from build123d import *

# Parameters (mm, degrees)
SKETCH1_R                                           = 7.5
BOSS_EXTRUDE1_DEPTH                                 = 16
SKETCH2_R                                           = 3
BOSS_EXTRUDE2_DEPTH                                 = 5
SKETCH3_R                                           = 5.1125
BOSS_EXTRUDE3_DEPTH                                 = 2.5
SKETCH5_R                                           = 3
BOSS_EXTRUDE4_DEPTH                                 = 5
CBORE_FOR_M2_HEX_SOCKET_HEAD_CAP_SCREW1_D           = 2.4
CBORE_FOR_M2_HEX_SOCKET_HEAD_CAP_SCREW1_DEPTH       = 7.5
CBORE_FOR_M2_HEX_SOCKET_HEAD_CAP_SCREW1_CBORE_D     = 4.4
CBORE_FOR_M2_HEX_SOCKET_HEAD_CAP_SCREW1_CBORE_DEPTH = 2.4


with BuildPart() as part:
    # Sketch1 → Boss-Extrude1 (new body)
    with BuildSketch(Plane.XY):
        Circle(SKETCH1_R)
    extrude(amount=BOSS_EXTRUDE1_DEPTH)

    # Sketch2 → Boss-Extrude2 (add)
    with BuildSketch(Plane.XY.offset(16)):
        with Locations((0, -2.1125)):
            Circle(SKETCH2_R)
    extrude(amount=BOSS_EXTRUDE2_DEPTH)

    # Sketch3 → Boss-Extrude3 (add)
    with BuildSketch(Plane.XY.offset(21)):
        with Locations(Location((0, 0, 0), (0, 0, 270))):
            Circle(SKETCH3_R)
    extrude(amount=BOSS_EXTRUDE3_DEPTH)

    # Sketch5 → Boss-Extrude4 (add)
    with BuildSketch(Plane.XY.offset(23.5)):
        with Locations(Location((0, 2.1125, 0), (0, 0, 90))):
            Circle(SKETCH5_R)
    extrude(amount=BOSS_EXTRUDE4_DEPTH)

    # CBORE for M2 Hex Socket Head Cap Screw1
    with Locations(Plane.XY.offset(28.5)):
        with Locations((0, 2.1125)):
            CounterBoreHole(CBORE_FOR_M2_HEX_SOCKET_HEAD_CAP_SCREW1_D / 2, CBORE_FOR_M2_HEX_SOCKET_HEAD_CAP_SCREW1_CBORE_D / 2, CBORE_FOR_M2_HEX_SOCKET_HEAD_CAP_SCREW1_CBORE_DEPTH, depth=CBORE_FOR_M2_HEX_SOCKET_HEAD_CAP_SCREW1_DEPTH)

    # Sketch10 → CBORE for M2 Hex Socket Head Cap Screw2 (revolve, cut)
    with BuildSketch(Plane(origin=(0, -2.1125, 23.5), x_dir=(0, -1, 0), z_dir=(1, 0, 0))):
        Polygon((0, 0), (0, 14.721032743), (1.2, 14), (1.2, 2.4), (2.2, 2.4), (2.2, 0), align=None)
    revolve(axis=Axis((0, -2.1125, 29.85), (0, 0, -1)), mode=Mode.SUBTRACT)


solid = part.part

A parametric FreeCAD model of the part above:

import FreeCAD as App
import Part
import Sketcher
from FreeCAD import Vector
Q = App.Units.Quantity

doc = App.newDocument("Part")
body = doc.addObject("PartDesign::Body", "Body")

# Sketch on XY plane
sketch1 = doc.addObject("Sketcher::SketchObject", "Sketch")
body.addObject(sketch1)
sketch1.AttachmentSupport = (doc.XY_Plane, [""])
sketch1.MapMode = "FlatFace"
sketch1.addGeometry(Part.Circle(Vector(0, 0, 0), Vector(0, 0, 1), 7.5), False)
sketch1.addConstraint([
    Sketcher.Constraint("Coincident", 0, 3, -1, 1),
    Sketcher.Constraint("Diameter", 0, Q("15 mm")),
])
pad1 = doc.addObject("PartDesign::Pad", "Pad")
body.addObject(pad1)
pad1.Profile = sketch1
pad1.Length = 16

# Sketch on XY plane
sketch2 = doc.addObject("Sketcher::SketchObject", "Sketch001")
body.addObject(sketch2)
sketch2.AttachmentSupport = (doc.XY_Plane, [""])
sketch2.MapMode = "FlatFace"
sketch2.AttachmentOffset = App.Placement(Vector(0, 0, 16), App.Rotation())
sketch2.addGeometry(Part.Circle(Vector(0, -2.1125, 0), Vector(0, 0, 1), 3), False)
sketch2.addConstraint([
    Sketcher.Constraint("PointOnObject", 0, 3, -2),
    Sketcher.Constraint("Diameter", 0, Q("6 mm")),
    Sketcher.Constraint("DistanceY", 0, 3, -1, 1, Q("2.1125 mm")),
])
pad2 = doc.addObject("PartDesign::Pad", "Pad001")
body.addObject(pad2)
pad2.Profile = sketch2
pad2.Length = 5

# Sketch on XY plane
sketch3 = doc.addObject("Sketcher::SketchObject", "Sketch002")
body.addObject(sketch3)
sketch3.AttachmentSupport = (doc.XY_Plane, [""])
sketch3.MapMode = "FlatFace"
sketch3.AttachmentOffset = App.Placement(Vector(0, 0, 21), App.Rotation())
sketch3.addGeometry(Part.Circle(Vector(0, 0, 0), Vector(0, 0, 1), 5.1125), False)
sketch3.addConstraint([
    Sketcher.Constraint("Coincident", 0, 3, -1, 1),
    Sketcher.Constraint("Diameter", 0, Q("10.225 mm")),
])
pad3 = doc.addObject("PartDesign::Pad", "Pad002")
body.addObject(pad3)
pad3.Profile = sketch3
pad3.Length = 2.5

# Sketch on XY plane
sketch4 = doc.addObject("Sketcher::SketchObject", "Sketch003")
body.addObject(sketch4)
sketch4.AttachmentSupport = (doc.XY_Plane, [""])
sketch4.MapMode = "FlatFace"
sketch4.AttachmentOffset = App.Placement(Vector(0, 0, 23.5), App.Rotation())
sketch4.addGeometry(Part.Circle(Vector(0, 2.1125, 0), Vector(0, 0, 1), 3), False)
sketch4.addConstraint([
    Sketcher.Constraint("PointOnObject", 0, 3, -2),
    Sketcher.Constraint("Diameter", 0, Q("6 mm")),
    Sketcher.Constraint("DistanceY", -1, 1, 0, 3, Q("2.1125 mm")),
])
pad4 = doc.addObject("PartDesign::Pad", "Pad003")
body.addObject(pad4)
pad4.Profile = sketch4
pad4.Length = 5

# Sketch on XY plane
sketch5 = doc.addObject("Sketcher::SketchObject", "Sketch004")
body.addObject(sketch5)
sketch5.AttachmentSupport = (doc.XY_Plane, [""])
sketch5.MapMode = "FlatFace"
sketch5.AttachmentOffset = App.Placement(Vector(0, 0, 28.5), App.Rotation())
sketch5.addGeometry(Part.Circle(Vector(0, 2.1125, 0), Vector(0, 0, 1), 1.2), False)
sketch5.addConstraint([
    Sketcher.Constraint("PointOnObject", 0, 3, -2),
    Sketcher.Constraint("Diameter", 0, Q("2.4 mm")),
    Sketcher.Constraint("DistanceY", -1, 1, 0, 3, Q("2.1125 mm")),
])
doc.recompute()
hole = doc.addObject("PartDesign::Hole", "Hole")
body.addObject(hole)
hole.Profile = sketch5
hole.ThreadType = "None"
hole.Diameter = 2.4
hole.DepthType = "Dimension"
hole.Depth = 7.5
hole.DrillPoint = "Flat"
hole.HoleCutType = "Counterbore"
hole.HoleCutDiameter = 4.4
hole.HoleCutDepth = 2.4

# Sketch on YZ plane
sketch6 = doc.addObject("Sketcher::SketchObject", "Sketch005")
body.addObject(sketch6)
sketch6.AttachmentSupport = (doc.YZ_Plane, [""])
sketch6.MapMode = "FlatFace"
sketch6.addGeometry([
    Part.LineSegment(Vector(-2.1125, 8.778967, 0), Vector(-2.1125, 23.5, 0)),  # 0
    Part.LineSegment(Vector(-2.1125, 23.5, 0), Vector(-4.3125, 23.5, 0)),  # 1
    Part.LineSegment(Vector(-4.3125, 23.5, 0), Vector(-4.3125, 21.1, 0)),  # 2
    Part.LineSegment(Vector(-4.3125, 21.1, 0), Vector(-3.3125, 21.1, 0)),  # 3
    Part.LineSegment(Vector(-3.3125, 21.1, 0), Vector(-3.3125, 9.5, 0)),  # 4
    Part.LineSegment(Vector(-3.3125, 9.5, 0), Vector(-2.1125, 8.778967, 0)),  # 5
], False)
sketch6.addGeometry(Part.LineSegment(Vector(-2.1125, 23.5, 0), Vector(-2.1125, 8.778967, 0)), True)  # axis
sketch6.addConstraint([
    Sketcher.Constraint("Coincident", 0, 2, 1, 1),
    Sketcher.Constraint("Coincident", 1, 2, 2, 1),
    Sketcher.Constraint("Coincident", 2, 2, 3, 1),
    Sketcher.Constraint("Coincident", 3, 2, 4, 1),
    Sketcher.Constraint("Coincident", 4, 2, 5, 1),
    Sketcher.Constraint("Coincident", 5, 2, 0, 1),
    Sketcher.Constraint("Vertical", 0),
    Sketcher.Constraint("Horizontal", 1),
    Sketcher.Constraint("Vertical", 2),
    Sketcher.Constraint("Horizontal", 3),
    Sketcher.Constraint("Vertical", 4),
    Sketcher.Constraint("Vertical", 6),
    Sketcher.Constraint("Coincident", 6, 1, 0, 2),
    Sketcher.Constraint("Equal", 0, 6),
    Sketcher.Constraint("DistanceX", 3, 1, 3, 2, Q("1 mm")),
    Sketcher.Constraint("Angle", 5, Q("-31 deg")),
    Sketcher.Constraint("DistanceX", 1, 2, 1, 1, Q("2.2 mm")),
    Sketcher.Constraint("DistanceY", 2, 2, 2, 1, Q("2.4 mm")),
    Sketcher.Constraint("DistanceY", 4, 2, 4, 1, Q("11.6 mm")),
    Sketcher.Constraint("DistanceY", -1, 1, 0, 2, Q("23.5 mm")),
    Sketcher.Constraint("DistanceX", 0, 2, -1, 1, Q("2.1125 mm")),
])
groove = doc.addObject("PartDesign::Groove", "Groove")
body.addObject(groove)
groove.Profile = sketch6
groove.ReferenceAxis = (sketch6, ["Axis0"])
groove.Angle = 360

doc.recompute()
